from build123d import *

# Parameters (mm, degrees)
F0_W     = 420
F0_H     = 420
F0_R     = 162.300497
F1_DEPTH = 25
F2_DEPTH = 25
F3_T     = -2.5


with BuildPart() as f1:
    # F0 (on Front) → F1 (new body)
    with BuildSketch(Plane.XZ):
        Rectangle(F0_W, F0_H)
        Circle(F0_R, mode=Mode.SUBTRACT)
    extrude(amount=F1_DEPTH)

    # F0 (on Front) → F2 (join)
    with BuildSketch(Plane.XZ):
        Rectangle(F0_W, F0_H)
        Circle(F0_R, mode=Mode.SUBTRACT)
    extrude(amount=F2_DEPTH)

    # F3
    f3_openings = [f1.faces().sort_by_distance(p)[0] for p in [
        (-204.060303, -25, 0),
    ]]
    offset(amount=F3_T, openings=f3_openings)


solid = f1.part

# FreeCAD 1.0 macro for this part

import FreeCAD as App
import Part
import Sketcher

V = App.Vector


def faces_at(feature, points):
    """Names of the faces that lie closest to the given points."""
    faces = feature.Shape.Faces
    near = lambda p: min(range(len(faces)), key=lambda i: faces[i].distToShape(Part.Vertex(*p))[0])
    return sorted({f"Face{near(p) + 1}" for p in points})


def add_polygon(sketch, points):
    """Adds a closed chain of lines whose ends are joined by coincident constraints."""
    first, n = sketch.GeometryCount, len(points)
    for a, b in zip(points, points[1:] + points[:1]):
        sketch.addGeometry(Part.LineSegment(App.Vector(*a, 0), App.Vector(*b, 0)), False)
    for i in range(n):
        sketch.addConstraint(Sketcher.Constraint("Coincident", first + i, 2, first + (i + 1) % n, 1))

doc = App.newDocument("Part")
params = doc.addObject("Spreadsheet::Sheet", "Params")
for row, (alias, value) in enumerate([
    ("sketch1_width", "420 mm"),
    ("pad1_length", "25 mm"),
    ("sketch2_width", "420 mm"),
    ("pad2_length", "25 mm"),
    ("thickness_wall", "2.5 mm"),
], start=1):
    params.set(f"A{row}", alias)
    params.set(f"B{row}", "=" + value)
    params.setAlias(f"B{row}", alias)

body = doc.addObject("PartDesign::Body", "Body")

# Sketch on XZ plane
sketch1 = body.newObject("Sketcher::SketchObject", "Sketch")
sketch1.AttachmentSupport = (doc.getObject("XZ_Plane"), [""])
sketch1.MapMode = "FlatFace"
add_polygon(sketch1, [(-210, 210), (-210, -210), (210, -210), (210, 210)])  # lines 0-3
sketch1.addGeometry(Part.Circle(V(0, 0, 0), V(0, 0, 1), 162), False)  # 4
sketch1.addConstraint([
    Sketcher.Constraint("Vertical", 0),
    Sketcher.Constraint("Horizontal", 1),
    Sketcher.Constraint("Vertical", 2),
    Sketcher.Constraint("Horizontal", 3),
    Sketcher.Constraint("Coincident", 4, 3, -1, 1),
    Sketcher.Constraint("Symmetric", 0, 2, 2, 2, -1, 1),
    Sketcher.Constraint("Equal", 3, 0),
    Sketcher.Constraint("DistanceX", 1, 1, 1, 2, 420.0),
    Sketcher.Constraint("Diameter", 4, 324.600994),
])
sketch1.setExpression("Constraints[11]", "Params.sketch1_width")
pad1 = body.newObject("PartDesign::Pad", "Pad")
pad1.Profile = sketch1
pad1.setExpression("Length", "Params.pad1_length")

# Sketch on XZ plane
sketch2 = body.newObject("Sketcher::SketchObject", "Sketch001")
sketch2.AttachmentSupport = (doc.getObject("XZ_Plane"), [""])
sketch2.MapMode = "FlatFace"
add_polygon(sketch2, [(-210, 210), (-210, -210), (210, -210), (210, 210)])  # lines 0-3
sketch2.addGeometry(Part.Circle(V(0, 0, 0), V(0, 0, 1), 162), False)  # 4
sketch2.addConstraint([
    Sketcher.Constraint("Vertical", 0),
    Sketcher.Constraint("Horizontal", 1),
    Sketcher.Constraint("Vertical", 2),
    Sketcher.Constraint("Horizontal", 3),
    Sketcher.Constraint("Coincident", 4, 3, -1, 1),
    Sketcher.Constraint("Symmetric", 0, 2, 2, 2, -1, 1),
    Sketcher.Constraint("Equal", 3, 0),
    Sketcher.Constraint("DistanceX", 1, 1, 1, 2, 420.0),
    Sketcher.Constraint("Diameter", 4, 324.600994),
])
sketch2.setExpression("Constraints[11]", "Params.sketch2_width")
pad2 = body.newObject("PartDesign::Pad", "Pad001")
pad2.Profile = sketch2
pad2.setExpression("Length", "Params.pad2_length")
doc.recompute()

thickness = body.newObject("PartDesign::Thickness", "Thickness")
thickness.Base = (pad2, faces_at(pad2, [(-168, -25, 0)]))
thickness.setExpression("Value", "Params.thickness_wall")
thickness.Reversed = True
thickness.Join = "Arc"

doc.recompute()
